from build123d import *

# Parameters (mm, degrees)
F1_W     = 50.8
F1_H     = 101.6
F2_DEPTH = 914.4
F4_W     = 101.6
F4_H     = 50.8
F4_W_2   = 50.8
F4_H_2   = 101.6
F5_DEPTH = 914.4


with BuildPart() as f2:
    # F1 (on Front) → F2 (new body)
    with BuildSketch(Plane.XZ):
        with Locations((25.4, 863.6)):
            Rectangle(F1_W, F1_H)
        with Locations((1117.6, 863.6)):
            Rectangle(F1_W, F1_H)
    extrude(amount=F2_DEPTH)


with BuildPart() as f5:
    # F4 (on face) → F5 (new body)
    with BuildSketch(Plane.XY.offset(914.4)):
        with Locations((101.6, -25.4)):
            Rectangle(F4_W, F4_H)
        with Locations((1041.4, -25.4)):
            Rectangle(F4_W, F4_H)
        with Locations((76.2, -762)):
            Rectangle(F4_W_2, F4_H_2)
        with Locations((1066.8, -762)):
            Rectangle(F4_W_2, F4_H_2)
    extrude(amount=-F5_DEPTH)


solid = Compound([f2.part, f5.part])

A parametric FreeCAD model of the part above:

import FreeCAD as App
import Part
import Sketcher
Q = App.Units.Quantity

doc = App.newDocument("Part")
body = doc.addObject("PartDesign::Body", "Body")
body.AllowCompound = True

# Sketch on XZ plane
sketch1 = body.newObject("Sketcher::SketchObject", "Sketch")
sketch1.AttachmentSupport = (doc.getObject("XZ_Plane"), [""])
sketch1.MapMode = "FlatFace"
sketch1.addGeometry([
    Part.LineSegment(App.Vector(0, 914, 0), App.Vector(0, 813, 0)),  # 0
    Part.LineSegment(App.Vector(0, 813, 0), App.Vector(51, 813, 0)),  # 1
    Part.LineSegment(App.Vector(51, 813, 0), App.Vector(51, 914, 0)),  # 2
    Part.LineSegment(App.Vector(51, 914, 0), App.Vector(0, 914, 0)),  # 3
    Part.LineSegment(App.Vector(1092, 914, 0), App.Vector(1092, 813, 0)),  # 4
    Part.LineSegment(App.Vector(1092, 813, 0), App.Vector(1143, 813, 0)),  # 5
    Part.LineSegment(App.Vector(1143, 813, 0), App.Vector(1143, 914, 0)),  # 6
    Part.LineSegment(App.Vector(1143, 914, 0), App.Vector(1092, 914, 0)),  # 7
], False)
sketch1.addConstraint([
    Sketcher.Constraint("Coincident", 0, 2, 1, 1),
    Sketcher.Constraint("Coincident", 1, 2, 2, 1),
    Sketcher.Constraint("Coincident", 2, 2, 3, 1),
    Sketcher.Constraint("Coincident", 3, 2, 0, 1),
    Sketcher.Constraint("Coincident", 4, 2, 5, 1),
    Sketcher.Constraint("Coincident", 5, 2, 6, 1),
    Sketcher.Constraint("Coincident", 6, 2, 7, 1),
    Sketcher.Constraint("Coincident", 7, 2, 4, 1),
    Sketcher.Constraint("Vertical", 0),
    Sketcher.Constraint("Horizontal", 1),
    Sketcher.Constraint("Vertical", 2),
    Sketcher.Constraint("Horizontal", 3),
    Sketcher.Constraint("Vertical", 4),
    Sketcher.Constraint("Horizontal", 5),
    Sketcher.Constraint("Vertical", 6),
    Sketcher.Constraint("Horizontal", 7),
    Sketcher.Constraint("PointOnObject", 0, 2, -2),
    Sketcher.Constraint("Horizontal", 1, 2, 4, 2),
    Sketcher.Constraint("Horizontal", 3, 2, 6, 2),
    Sketcher.Constraint("Equal", 3, 5),
    Sketcher.Constraint("DistanceX", 1, 1, 1, 2, Q("2 in")),
    Sketcher.Constraint("DistanceY", 0, 2, 0, 1, Q("4 in")),
    Sketcher.Constraint("DistanceY", -1, 1, 0, 2, Q("32 in")),
    Sketcher.Constraint("DistanceX", -1, 1, 4, 2, Q("43 in")),
])
pad1 = body.newObject("PartDesign::Pad", "Pad")
pad1.Profile = sketch1
pad1.Length = Q("36 in")
body2 = doc.addObject("PartDesign::Body", "Body001")
body2.AllowCompound = True

# Sketch on XY plane
sketch2 = body2.newObject("Sketcher::SketchObject", "Sketch001")
sketch2.AttachmentSupport = (doc.getObject("XY_Plane001"), [""])
sketch2.MapMode = "FlatFace"
sketch2.AttachmentOffset = App.Placement(App.Vector(0, 0, 36 * 25.4), App.Rotation())
sketch2.addGeometry([
    Part.LineSegment(App.Vector(51, 0, 0), App.Vector(51, -51, 0)),  # 0
    Part.LineSegment(App.Vector(51, -51, 0), App.Vector(152, -51, 0)),  # 1
    Part.LineSegment(App.Vector(152, -51, 0), App.Vector(152, 0, 0)),  # 2
    Part.LineSegment(App.Vector(152, 0, 0), App.Vector(51, 0, 0)),  # 3
    Part.LineSegment(App.Vector(991, 0, 0), App.Vector(991, -51, 0)),  # 4
    Part.LineSegment(App.Vector(991, -51, 0), App.Vector(1092, -51, 0)),  # 5
    Part.LineSegment(App.Vector(1092, -51, 0), App.Vector(1092, 0, 0)),  # 6
    Part.LineSegment(App.Vector(1092, 0, 0), App.Vector(991, 0, 0)),  # 7
    Part.LineSegment(App.Vector(51, -711, 0), App.Vector(51, -813, 0)),  # 8
    Part.LineSegment(App.Vector(51, -813, 0), App.Vector(102, -813, 0)),  # 9
    Part.LineSegment(App.Vector(102, -813, 0), App.Vector(102, -711, 0)),  # 10
    Part.LineSegment(App.Vector(102, -711, 0), App.Vector(51, -711, 0)),  # 11
    Part.LineSegment(App.Vector(1041, -711, 0), App.Vector(1041, -813, 0)),  # 12
    Part.LineSegment(App.Vector(1041, -813, 0), App.Vector(1092, -813, 0)),  # 13
    Part.LineSegment(App.Vector(1092, -813, 0), App.Vector(1092, -711, 0)),  # 14
    Part.LineSegment(App.Vector(1092, -711, 0), App.Vector(1041, -711, 0)),  # 15
], False)
sketch2.addConstraint([
    Sketcher.Constraint("Coincident", 0, 2, 1, 1),
    Sketcher.Constraint("Coincident", 1, 2, 2, 1),
    Sketcher.Constraint("Coincident", 2, 2, 3, 1),
    Sketcher.Constraint("Coincident", 3, 2, 0, 1),
    Sketcher.Constraint("Coincident", 4, 2, 5, 1),
    Sketcher.Constraint("Coincident", 5, 2, 6, 1),
    Sketcher.Constraint("Coincident", 6, 2, 7, 1),
    Sketcher.Constraint("Coincident", 7, 2, 4, 1),
    Sketcher.Constraint("Coincident", 8, 2, 9, 1),
    Sketcher.Constraint("Coincident", 9, 2, 10, 1),
    Sketcher.Constraint("Coincident", 10, 2, 11, 1),
    Sketcher.Constraint("Coincident", 11, 2, 8, 1),
    Sketcher.Constraint("Coincident", 12, 2, 13, 1),
    Sketcher.Constraint("Coincident", 13, 2, 14, 1),
    Sketcher.Constraint("Coincident", 14, 2, 15, 1),
    Sketcher.Constraint("Coincident", 15, 2, 12, 1),
    Sketcher.Constraint("Vertical", 0),
    Sketcher.Constraint("Horizontal", 1),
    Sketcher.Constraint("Vertical", 2),
    Sketcher.Constraint("Horizontal", 3),
    Sketcher.Constraint("Vertical", 4),
    Sketcher.Constraint("Horizontal", 5),
    Sketcher.Constraint("Vertical", 6),
    Sketcher.Constraint("Horizontal", 7),
    Sketcher.Constraint("Vertical", 8),
    Sketcher.Constraint("Horizontal", 9),
    Sketcher.Constraint("Vertical", 10),
    Sketcher.Constraint("Horizontal", 11),
    Sketcher.Constraint("Vertical", 12),
    Sketcher.Constraint("Horizontal", 13),
    Sketcher.Constraint("Vertical", 14),
    Sketcher.Constraint("Horizontal", 15),
    Sketcher.Constraint("PointOnObject", 2, 2, -1),
    Sketcher.Constraint("PointOnObject", 6, 2, -1),
    Sketcher.Constraint("Horizontal", 1, 2, 4, 2),
    Sketcher.Constraint("Horizontal", 9, 2, 12, 2),
    Sketcher.Constraint("Horizontal", 11, 2, 14, 2),
    Sketcher.Constraint("Vertical", 3, 2, 8, 2),
    Sketcher.Constraint("Vertical", 6, 2, 13, 2),
    Sketcher.Constraint("Equal", 3, 5),
    Sketcher.Constraint("Equal", 11, 13),
    Sketcher.Constraint("Equal", 15, 0),
    Sketcher.Constraint("Equal", 7, 8),
    Sketcher.Constraint("DistanceX", 1, 1, 1, 2, Q("4 in")),
    Sketcher.Constraint("DistanceX", 9, 1, 9, 2, Q("2 in")),
    Sketcher.Constraint("DistanceX", -1, 1, 0, 2, Q("2 in")),
    Sketcher.Constraint("DistanceX", -1, 1, 4, 2, Q("39 in")),
    Sketcher.Constraint("DistanceY", 8, 2, -1, 1, Q("32 in")),
])
pad2 = body2.newObject("PartDesign::Pad", "Pad001")
pad2.Profile = sketch2
pad2.Length = Q("36 in")
pad2.Reversed = True

doc.recompute()
